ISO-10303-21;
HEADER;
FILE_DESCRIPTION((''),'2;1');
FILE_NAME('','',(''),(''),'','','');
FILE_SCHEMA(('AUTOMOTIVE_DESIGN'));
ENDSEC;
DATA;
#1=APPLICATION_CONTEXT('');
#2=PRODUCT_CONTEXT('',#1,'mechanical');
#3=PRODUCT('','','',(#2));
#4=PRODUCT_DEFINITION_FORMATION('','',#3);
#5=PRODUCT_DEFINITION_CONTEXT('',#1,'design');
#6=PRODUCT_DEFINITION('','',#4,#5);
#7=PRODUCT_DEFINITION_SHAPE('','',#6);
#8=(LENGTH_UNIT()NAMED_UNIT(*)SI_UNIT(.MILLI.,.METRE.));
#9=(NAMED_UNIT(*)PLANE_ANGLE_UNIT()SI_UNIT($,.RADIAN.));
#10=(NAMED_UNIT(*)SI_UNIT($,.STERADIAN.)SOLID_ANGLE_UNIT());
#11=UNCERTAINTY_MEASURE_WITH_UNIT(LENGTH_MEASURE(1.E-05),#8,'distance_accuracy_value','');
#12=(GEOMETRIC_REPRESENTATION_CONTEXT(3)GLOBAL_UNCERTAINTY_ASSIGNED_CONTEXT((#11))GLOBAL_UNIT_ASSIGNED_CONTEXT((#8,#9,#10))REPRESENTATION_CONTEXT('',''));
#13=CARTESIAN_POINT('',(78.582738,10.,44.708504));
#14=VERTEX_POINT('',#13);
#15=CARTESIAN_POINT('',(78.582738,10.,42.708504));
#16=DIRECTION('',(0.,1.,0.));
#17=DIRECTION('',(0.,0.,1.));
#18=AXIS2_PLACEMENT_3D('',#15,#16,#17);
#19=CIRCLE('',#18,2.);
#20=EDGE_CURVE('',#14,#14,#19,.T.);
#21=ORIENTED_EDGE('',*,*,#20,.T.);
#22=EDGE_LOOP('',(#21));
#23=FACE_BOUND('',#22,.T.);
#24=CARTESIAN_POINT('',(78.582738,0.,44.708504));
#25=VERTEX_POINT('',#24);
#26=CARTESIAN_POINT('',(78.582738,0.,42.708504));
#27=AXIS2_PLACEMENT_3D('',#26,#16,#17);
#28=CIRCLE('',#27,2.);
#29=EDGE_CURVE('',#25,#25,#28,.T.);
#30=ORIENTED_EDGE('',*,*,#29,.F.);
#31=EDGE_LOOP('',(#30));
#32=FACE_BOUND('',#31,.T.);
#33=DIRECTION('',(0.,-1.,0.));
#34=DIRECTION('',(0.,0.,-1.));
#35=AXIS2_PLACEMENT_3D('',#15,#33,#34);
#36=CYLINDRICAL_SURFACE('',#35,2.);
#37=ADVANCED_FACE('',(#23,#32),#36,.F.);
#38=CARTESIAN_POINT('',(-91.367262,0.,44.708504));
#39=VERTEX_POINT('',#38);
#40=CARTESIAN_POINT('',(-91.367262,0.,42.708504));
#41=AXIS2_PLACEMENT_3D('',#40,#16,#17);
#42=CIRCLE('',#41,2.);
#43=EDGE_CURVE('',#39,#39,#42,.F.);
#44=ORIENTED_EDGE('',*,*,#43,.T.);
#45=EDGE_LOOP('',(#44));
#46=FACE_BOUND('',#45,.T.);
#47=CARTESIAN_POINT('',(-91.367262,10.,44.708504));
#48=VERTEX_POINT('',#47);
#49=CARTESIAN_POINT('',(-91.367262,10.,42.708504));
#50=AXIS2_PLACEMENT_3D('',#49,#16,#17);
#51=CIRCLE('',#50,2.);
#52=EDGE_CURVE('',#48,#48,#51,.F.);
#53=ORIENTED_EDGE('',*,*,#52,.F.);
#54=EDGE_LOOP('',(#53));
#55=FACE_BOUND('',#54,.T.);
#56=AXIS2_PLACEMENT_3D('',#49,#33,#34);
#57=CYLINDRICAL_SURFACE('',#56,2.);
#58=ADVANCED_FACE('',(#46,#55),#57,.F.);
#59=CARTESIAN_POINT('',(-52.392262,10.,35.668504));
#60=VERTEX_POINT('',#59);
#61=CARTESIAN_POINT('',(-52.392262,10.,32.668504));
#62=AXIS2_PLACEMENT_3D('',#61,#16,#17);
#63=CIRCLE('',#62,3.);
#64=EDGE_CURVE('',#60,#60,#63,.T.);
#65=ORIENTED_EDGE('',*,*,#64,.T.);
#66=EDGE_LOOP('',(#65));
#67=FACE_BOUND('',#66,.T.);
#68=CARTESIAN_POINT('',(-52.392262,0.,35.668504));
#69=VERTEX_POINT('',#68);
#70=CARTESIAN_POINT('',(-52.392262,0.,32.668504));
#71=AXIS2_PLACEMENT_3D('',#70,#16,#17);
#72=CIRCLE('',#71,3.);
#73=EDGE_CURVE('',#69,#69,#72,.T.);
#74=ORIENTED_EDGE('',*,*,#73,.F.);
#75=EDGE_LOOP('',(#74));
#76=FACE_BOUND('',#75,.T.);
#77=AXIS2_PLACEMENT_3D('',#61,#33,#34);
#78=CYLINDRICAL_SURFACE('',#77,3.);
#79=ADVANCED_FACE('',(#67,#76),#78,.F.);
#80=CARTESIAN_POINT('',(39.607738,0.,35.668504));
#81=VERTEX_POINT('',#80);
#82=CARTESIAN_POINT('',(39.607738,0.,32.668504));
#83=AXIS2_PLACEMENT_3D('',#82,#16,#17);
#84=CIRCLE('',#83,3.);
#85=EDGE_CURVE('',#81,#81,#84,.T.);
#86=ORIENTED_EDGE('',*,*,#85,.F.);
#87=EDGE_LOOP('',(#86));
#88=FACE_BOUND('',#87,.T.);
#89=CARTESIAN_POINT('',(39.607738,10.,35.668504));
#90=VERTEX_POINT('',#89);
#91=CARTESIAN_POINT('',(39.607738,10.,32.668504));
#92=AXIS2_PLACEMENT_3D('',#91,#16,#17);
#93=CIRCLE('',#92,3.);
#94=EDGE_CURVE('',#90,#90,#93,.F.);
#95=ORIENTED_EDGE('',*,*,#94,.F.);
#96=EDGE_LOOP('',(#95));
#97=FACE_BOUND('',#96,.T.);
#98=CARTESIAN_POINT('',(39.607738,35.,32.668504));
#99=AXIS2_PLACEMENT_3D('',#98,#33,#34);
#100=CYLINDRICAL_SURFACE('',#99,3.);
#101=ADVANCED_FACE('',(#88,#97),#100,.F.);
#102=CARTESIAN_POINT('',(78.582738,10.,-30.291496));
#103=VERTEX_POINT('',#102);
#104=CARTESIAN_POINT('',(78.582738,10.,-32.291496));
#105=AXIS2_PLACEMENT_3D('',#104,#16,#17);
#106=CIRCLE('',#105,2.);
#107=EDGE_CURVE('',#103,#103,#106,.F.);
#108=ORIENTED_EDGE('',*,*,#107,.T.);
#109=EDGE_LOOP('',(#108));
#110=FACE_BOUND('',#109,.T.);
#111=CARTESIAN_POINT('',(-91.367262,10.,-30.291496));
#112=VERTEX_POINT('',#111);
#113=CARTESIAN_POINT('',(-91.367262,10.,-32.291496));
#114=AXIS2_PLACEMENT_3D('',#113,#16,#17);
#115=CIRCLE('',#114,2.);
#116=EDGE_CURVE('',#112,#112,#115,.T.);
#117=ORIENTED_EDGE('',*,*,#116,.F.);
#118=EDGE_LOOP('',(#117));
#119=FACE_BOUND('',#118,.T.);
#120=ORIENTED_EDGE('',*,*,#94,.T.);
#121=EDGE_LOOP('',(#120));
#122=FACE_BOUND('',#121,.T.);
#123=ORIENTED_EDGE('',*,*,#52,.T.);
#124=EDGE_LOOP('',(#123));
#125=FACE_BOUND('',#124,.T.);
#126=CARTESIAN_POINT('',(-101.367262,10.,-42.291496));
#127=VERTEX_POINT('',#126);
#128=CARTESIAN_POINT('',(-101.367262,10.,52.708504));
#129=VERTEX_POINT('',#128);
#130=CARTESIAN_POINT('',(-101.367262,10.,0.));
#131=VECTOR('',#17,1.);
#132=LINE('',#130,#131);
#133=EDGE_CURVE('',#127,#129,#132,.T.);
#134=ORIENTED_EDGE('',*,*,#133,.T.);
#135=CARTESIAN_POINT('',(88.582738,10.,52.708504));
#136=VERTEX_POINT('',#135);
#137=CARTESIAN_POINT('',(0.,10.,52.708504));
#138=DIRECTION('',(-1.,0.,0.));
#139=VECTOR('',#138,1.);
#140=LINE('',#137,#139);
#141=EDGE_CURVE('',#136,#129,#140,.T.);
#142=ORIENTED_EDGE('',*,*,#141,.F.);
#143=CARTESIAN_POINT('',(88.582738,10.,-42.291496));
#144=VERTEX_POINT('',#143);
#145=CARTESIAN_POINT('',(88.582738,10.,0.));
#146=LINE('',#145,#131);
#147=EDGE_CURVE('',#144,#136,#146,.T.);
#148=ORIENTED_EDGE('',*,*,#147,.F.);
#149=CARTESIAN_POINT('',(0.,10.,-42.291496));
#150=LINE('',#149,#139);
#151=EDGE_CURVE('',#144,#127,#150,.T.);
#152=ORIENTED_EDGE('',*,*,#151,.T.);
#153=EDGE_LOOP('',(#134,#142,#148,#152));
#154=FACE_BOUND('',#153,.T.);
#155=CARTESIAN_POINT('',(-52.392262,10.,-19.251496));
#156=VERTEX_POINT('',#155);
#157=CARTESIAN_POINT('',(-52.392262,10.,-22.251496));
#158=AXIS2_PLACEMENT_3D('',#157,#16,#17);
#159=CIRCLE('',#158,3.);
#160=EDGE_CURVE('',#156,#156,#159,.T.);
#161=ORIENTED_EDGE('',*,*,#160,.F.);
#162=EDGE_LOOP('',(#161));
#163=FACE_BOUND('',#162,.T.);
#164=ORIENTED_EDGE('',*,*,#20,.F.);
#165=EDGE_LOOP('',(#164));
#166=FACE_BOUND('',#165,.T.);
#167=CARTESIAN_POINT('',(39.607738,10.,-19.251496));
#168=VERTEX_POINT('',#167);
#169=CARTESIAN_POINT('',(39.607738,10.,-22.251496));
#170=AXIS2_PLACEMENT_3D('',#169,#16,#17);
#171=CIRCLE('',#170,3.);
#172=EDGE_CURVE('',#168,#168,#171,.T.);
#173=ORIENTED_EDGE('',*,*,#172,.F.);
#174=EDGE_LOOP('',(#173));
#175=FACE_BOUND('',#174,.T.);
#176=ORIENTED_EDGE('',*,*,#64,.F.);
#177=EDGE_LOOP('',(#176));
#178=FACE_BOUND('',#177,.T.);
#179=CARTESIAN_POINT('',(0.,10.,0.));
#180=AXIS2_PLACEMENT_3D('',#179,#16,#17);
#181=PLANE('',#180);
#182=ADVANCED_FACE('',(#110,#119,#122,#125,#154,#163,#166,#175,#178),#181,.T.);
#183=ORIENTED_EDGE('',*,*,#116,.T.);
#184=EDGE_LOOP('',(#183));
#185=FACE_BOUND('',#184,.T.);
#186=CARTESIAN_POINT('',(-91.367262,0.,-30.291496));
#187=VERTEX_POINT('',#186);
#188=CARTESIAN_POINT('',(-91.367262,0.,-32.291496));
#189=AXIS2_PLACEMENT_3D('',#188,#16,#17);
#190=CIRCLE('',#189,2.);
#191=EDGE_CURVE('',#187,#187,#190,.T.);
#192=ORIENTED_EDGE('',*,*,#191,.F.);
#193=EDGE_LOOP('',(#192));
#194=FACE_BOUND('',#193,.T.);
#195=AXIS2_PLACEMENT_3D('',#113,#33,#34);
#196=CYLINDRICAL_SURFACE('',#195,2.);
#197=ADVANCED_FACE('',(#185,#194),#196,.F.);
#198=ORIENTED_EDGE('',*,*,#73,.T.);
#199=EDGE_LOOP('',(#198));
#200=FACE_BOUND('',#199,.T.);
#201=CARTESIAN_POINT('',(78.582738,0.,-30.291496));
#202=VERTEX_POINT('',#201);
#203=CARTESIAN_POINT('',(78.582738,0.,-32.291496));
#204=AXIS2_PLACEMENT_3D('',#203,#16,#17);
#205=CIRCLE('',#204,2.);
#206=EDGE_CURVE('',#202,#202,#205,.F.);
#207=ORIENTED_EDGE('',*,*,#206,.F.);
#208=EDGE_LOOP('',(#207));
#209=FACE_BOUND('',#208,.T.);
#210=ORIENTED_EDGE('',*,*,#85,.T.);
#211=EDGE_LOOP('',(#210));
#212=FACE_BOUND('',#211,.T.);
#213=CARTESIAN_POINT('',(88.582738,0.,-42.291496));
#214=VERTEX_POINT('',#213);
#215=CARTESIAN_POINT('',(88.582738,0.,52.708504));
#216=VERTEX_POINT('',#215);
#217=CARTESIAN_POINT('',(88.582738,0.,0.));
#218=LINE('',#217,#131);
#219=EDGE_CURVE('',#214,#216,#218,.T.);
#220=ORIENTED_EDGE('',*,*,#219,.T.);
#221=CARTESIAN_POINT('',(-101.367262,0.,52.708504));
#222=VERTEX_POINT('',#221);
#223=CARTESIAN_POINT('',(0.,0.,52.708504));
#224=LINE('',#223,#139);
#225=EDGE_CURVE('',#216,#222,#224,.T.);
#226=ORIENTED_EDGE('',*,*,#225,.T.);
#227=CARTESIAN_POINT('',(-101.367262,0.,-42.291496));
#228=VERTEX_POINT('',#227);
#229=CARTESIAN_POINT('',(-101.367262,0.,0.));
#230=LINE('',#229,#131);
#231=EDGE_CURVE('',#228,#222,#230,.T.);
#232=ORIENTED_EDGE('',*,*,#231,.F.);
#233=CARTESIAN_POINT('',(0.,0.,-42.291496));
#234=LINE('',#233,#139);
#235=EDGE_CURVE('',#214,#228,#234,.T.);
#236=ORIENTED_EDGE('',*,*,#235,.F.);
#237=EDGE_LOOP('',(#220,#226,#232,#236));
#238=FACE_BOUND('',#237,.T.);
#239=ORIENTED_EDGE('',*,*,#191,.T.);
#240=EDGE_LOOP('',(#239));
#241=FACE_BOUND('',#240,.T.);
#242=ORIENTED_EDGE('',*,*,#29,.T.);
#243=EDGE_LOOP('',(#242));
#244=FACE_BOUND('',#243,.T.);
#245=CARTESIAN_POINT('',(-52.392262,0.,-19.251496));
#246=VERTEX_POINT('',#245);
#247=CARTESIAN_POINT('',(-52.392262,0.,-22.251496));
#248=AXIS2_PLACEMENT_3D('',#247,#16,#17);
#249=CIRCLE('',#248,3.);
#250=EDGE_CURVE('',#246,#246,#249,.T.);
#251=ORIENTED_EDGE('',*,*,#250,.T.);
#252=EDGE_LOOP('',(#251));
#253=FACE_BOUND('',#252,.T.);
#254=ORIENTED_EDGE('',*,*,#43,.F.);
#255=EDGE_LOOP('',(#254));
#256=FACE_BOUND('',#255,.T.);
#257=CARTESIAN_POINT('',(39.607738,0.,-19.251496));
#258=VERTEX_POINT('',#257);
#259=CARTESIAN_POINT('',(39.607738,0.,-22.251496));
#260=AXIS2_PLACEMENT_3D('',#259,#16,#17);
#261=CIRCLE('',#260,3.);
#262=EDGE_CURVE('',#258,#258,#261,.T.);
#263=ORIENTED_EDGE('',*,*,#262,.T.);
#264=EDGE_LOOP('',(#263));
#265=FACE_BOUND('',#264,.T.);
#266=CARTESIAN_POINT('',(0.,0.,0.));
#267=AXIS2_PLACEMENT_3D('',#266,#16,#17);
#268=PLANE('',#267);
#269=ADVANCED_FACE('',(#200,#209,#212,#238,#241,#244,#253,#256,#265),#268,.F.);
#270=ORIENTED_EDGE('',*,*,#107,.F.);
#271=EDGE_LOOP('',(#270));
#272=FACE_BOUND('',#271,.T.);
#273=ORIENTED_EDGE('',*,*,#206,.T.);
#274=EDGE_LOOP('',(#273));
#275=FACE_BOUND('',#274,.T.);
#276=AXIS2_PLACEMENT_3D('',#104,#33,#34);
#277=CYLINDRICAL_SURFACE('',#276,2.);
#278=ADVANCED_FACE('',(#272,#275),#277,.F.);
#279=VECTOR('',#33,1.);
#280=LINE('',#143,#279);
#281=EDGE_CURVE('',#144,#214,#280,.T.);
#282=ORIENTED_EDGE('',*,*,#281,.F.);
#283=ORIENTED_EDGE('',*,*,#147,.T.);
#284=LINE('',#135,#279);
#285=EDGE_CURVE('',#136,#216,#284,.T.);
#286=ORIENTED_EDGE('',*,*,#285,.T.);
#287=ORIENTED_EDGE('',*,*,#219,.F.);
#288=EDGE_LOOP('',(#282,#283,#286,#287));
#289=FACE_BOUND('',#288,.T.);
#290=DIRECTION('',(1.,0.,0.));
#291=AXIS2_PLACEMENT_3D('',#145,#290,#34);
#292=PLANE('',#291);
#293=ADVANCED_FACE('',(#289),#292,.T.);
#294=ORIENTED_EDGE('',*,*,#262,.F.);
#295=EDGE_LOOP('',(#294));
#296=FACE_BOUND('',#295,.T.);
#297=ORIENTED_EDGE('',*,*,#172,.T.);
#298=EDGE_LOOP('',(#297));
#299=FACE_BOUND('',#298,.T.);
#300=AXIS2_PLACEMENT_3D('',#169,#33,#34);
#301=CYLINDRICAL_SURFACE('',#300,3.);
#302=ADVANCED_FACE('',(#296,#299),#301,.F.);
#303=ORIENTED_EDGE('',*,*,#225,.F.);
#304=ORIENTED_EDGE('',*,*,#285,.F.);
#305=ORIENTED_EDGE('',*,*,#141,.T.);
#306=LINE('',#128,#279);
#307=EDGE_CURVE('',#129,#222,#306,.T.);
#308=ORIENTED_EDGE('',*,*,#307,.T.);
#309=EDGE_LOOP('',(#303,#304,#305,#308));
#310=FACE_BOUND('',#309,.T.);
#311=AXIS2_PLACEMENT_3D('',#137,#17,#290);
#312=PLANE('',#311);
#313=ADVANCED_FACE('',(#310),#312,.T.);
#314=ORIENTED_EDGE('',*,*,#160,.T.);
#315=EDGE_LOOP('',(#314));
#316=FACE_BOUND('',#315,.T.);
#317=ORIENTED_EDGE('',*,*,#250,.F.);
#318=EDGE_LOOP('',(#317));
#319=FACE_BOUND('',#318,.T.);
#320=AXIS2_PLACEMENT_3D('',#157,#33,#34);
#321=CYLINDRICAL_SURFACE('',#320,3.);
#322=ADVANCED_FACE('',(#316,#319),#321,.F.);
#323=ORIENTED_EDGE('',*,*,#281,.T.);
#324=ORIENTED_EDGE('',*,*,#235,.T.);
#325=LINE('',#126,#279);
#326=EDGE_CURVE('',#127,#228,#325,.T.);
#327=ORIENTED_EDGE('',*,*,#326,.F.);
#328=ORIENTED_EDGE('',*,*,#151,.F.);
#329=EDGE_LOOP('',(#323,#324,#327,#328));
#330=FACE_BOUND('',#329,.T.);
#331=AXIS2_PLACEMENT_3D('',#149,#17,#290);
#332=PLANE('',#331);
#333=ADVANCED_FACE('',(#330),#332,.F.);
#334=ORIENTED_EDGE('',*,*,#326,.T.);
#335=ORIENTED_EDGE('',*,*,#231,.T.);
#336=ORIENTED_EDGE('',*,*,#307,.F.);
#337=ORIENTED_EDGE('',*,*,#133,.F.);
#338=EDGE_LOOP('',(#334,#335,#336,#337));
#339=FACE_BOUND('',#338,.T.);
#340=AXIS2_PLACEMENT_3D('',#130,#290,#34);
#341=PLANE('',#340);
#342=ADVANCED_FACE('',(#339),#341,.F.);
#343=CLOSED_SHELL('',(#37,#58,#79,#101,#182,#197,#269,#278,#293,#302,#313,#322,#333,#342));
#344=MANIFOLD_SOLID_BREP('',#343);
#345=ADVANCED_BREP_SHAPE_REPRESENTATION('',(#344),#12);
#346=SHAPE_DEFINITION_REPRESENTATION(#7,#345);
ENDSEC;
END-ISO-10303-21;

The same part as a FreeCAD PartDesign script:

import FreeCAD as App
import Part
import Sketcher
Q = App.Units.Quantity


def add_polygon(sketch, points):
    """Adds a closed chain of lines whose ends are joined by coincident constraints."""
    first, n = sketch.GeometryCount, len(points)
    for a, b in zip(points, points[1:] + points[:1]):
        sketch.addGeometry(Part.LineSegment(App.Vector(*a, 0), App.Vector(*b, 0)), False)
    for i in range(n):
        sketch.addConstraint(Sketcher.Constraint("Coincident", first + i, 2, first + (i + 1) % n, 1))

doc = App.newDocument("Part")
body = doc.addObject("PartDesign::Body", "Body")

sketch1 = body.newObject("Sketcher::SketchObject", "Sketch")
sketch1.AttachmentSupport = (doc.getObject("XZ_Plane"), [""])
sketch1.MapMode = "FlatFace"
add_polygon(sketch1, [(-101.367262, -42.291496), (-101.367262, 52.708504), (88.582738, 52.708504), (88.582738, -42.291496)])
sketch1.addGeometry(Part.Circle(App.Vector(-91.367262, 42.708504, 0), App.Vector(0, 0, 1), 2), False)
sketch1.addGeometry(Part.Circle(App.Vector(-52.392262, 32.668504, 0), App.Vector(0, 0, 1), 3), False)
sketch1.addGeometry(Part.Circle(App.Vector(78.582738, 42.708504, 0), App.Vector(0, 0, 1), 2), False)
sketch1.addGeometry(Part.Circle(App.Vector(-52.392262, -22.251496, 0), App.Vector(0, 0, 1), 3), False)
sketch1.addGeometry(Part.Circle(App.Vector(-91.367262, -32.291496, 0), App.Vector(0, 0, 1), 2), False)
sketch1.addGeometry(Part.Circle(App.Vector(39.607738, -22.251496, 0), App.Vector(0, 0, 1), 3), False)
sketch1.addGeometry(Part.Circle(App.Vector(78.582738, -32.291496, 0), App.Vector(0, 0, 1), 2), False)
sketch1.addConstraint(Sketcher.Constraint("Vertical", 0))
sketch1.addConstraint(Sketcher.Constraint("Horizontal", 1))
sketch1.addConstraint(Sketcher.Constraint("Vertical", 2))
sketch1.addConstraint(Sketcher.Constraint("Horizontal", 3))
sketch1.addConstraint(Sketcher.Constraint("Equal", 4, 6))
sketch1.addConstraint(Sketcher.Constraint("Equal", 5, 7))
sketch1.addConstraint(Sketcher.Constraint("Equal", 6, 8))
sketch1.addConstraint(Sketcher.Constraint("Equal", 7, 9))
sketch1.addConstraint(Sketcher.Constraint("Equal", 8, 10))
sketch1.addConstraint(Sketcher.Constraint("Horizontal", 4, 3, 6, 3))
sketch1.addConstraint(Sketcher.Constraint("Horizontal", 7, 3, 9, 3))
sketch1.addConstraint(Sketcher.Constraint("Horizontal", 8, 3, 10, 3))
sketch1.addConstraint(Sketcher.Constraint("Vertical", 5, 3, 7, 3))
sketch1.addConstraint(Sketcher.Constraint("Vertical", 4, 3, 8, 3))
sketch1.addConstraint(Sketcher.Constraint("Vertical", 6, 3, 10, 3))
sketch1.addConstraint(Sketcher.Constraint("Diameter", 4, Q("4 mm")))
sketch1.addConstraint(Sketcher.Constraint("Diameter", 5, Q("6 mm")))
sketch1.addConstraint(Sketcher.Constraint("DistanceY", 0, 1, 0, 2, Q("95 mm")))
sketch1.addConstraint(Sketcher.Constraint("DistanceY", 8, 3, 4, 3, Q("75 mm")))
sketch1.addConstraint(Sketcher.Constraint("DistanceX", 7, 3, 9, 3, Q("92 mm")))
sketch1.addConstraint(Sketcher.Constraint("DistanceX", 0, 2, 4, 3, Q("10 mm")))
sketch1.addConstraint(Sketcher.Constraint("DistanceY", 4, 3, 0, 2, Q("10 mm")))
sketch1.addConstraint(Sketcher.Constraint("DistanceX", 6, 3, 1, 2, Q("10 mm")))
sketch1.addConstraint(Sketcher.Constraint("DistanceX", 1, 1, 1, 2, Q("189.95 mm")))
sketch1.addConstraint(Sketcher.Constraint("DistanceY", 5, 3, 4, 3, Q("10.04 mm")))
sketch1.addConstraint(Sketcher.Constraint("DistanceY", 7, 3, 5, 3, Q("54.92 mm")))
sketch1.addConstraint(Sketcher.Constraint("DistanceX", 4, 3, 5, 3, Q("38.975 mm")))
sketch1.addConstraint(Sketcher.Constraint("DistanceX", 4, 3, -1, 1, Q("91.367262 mm")))
sketch1.addConstraint(Sketcher.Constraint("DistanceY", -1, 1, 4, 3, Q("42.708504 mm")))
pad1 = body.newObject("PartDesign::Pad", "Pad")
pad1.Profile = sketch1
pad1.Length = 10
pad1.Reversed = True

sketch2 = body.newObject("Sketcher::SketchObject", "Sketch001")
sketch2.AttachmentSupport = (doc.getObject("XZ_Plane"), [""])
sketch2.MapMode = "FlatFace"
sketch2.addGeometry(Part.Circle(App.Vector(39.607738, 32.668504, 0), App.Vector(0, 0, 1), 3), False)
sketch2.addConstraint(Sketcher.Constraint("Diameter", 0, Q("6 mm")))
sketch2.addConstraint(Sketcher.Constraint("DistanceX", -1, 1, 0, 3, Q("39.607738 mm")))
sketch2.addConstraint(Sketcher.Constraint("DistanceY", -1, 1, 0, 3, Q("32.668504 mm")))
pocket1 = body.newObject("PartDesign::Pocket", "Pocket")
pocket1.Profile = sketch2
pocket1.Length = 35

doc.recompute()
